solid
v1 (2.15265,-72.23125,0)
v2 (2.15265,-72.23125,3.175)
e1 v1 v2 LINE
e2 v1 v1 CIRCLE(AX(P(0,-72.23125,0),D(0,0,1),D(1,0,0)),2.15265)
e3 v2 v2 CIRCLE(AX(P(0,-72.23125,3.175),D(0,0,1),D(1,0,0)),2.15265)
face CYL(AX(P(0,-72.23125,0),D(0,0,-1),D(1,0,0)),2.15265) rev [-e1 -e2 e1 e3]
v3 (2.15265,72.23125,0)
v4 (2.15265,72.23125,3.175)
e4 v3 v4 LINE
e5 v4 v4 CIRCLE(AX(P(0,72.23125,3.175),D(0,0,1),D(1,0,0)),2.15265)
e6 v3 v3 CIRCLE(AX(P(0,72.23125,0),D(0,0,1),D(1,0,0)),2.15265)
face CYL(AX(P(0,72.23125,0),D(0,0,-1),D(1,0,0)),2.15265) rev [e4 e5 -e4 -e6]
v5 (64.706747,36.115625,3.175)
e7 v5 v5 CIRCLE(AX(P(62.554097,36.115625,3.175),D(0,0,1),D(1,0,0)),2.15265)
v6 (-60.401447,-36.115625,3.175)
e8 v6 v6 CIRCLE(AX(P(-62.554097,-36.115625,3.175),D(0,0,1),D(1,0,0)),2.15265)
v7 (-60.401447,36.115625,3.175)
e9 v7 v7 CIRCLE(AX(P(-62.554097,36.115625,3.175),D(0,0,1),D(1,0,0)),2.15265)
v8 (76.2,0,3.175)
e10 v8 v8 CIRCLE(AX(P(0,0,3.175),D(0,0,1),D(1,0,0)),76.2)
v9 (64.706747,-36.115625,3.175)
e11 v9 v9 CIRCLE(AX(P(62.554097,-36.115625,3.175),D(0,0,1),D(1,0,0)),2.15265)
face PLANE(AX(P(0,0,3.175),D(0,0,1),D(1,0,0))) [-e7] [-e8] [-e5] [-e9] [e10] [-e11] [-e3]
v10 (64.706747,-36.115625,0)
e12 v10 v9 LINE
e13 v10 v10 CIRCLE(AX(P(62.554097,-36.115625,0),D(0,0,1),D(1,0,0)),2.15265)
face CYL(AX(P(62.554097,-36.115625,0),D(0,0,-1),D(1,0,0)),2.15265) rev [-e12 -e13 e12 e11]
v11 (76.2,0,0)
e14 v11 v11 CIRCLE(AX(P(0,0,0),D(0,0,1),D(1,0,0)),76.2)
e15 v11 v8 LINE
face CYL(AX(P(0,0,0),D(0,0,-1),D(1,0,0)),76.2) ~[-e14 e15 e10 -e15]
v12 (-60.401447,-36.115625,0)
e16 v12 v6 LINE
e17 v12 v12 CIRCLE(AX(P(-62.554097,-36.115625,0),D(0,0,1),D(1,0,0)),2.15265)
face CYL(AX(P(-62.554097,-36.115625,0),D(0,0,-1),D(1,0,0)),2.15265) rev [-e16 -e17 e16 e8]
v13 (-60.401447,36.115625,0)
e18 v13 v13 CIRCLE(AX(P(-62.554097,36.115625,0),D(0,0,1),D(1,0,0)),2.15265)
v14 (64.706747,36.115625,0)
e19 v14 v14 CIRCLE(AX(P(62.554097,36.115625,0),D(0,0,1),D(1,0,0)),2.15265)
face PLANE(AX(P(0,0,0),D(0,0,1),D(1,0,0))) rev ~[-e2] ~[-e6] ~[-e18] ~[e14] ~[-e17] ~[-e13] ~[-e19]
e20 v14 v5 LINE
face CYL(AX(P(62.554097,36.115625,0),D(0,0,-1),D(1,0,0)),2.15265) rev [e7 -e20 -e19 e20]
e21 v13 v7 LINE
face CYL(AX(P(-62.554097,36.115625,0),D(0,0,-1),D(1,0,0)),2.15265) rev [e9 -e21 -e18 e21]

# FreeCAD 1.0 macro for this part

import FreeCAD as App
import Part
import Sketcher
Q = App.Units.Quantity

doc = App.newDocument("Part")
body = doc.addObject("PartDesign::Body", "Body")

# Sketch on XY plane
sketch1 = body.newObject("Sketcher::SketchObject", "Sketch")
sketch1.AttachmentSupport = (doc.getObject("XY_Plane"), [""])
sketch1.MapMode = "FlatFace"
sketch1.addGeometry(Part.Circle(App.Vector(0, 0, 0), App.Vector(0, 0, 1), 76.2), False)
sketch1.addGeometry(Part.Circle(App.Vector(-62.6, -36.1, 0), App.Vector(0, 0, 1), 2.2), False)
sketch1.addGeometry(Part.Circle(App.Vector(0, -72.2, 0), App.Vector(0, 0, 1), 2.2), False)
sketch1.addGeometry(Part.Circle(App.Vector(62.6, -36.1, 0), App.Vector(0, 0, 1), 2.2), False)
sketch1.addGeometry(Part.Circle(App.Vector(-62.6, 36.1, 0), App.Vector(0, 0, 1), 2.2), False)
sketch1.addGeometry(Part.Circle(App.Vector(62.6, 36.1, 0), App.Vector(0, 0, 1), 2.2), False)
sketch1.addGeometry(Part.Circle(App.Vector(0, 72.2, 0), App.Vector(0, 0, 1), 2.2), False)
sketch1.addConstraint(Sketcher.Constraint("Coincident", 0, 3, -1, 1))
sketch1.addConstraint(Sketcher.Constraint("Equal", 1, 2))
sketch1.addConstraint(Sketcher.Constraint("Equal", 2, 3))
sketch1.addConstraint(Sketcher.Constraint("Equal", 3, 4))
sketch1.addConstraint(Sketcher.Constraint("Equal", 4, 5))
sketch1.addConstraint(Sketcher.Constraint("Equal", 5, 6))
sketch1.addConstraint(Sketcher.Constraint("Symmetric", 3, 3, 4, 3, -1, 1))
sketch1.addConstraint(Sketcher.Constraint("Symmetric", 1, 3, 5, 3, -1, 1))
sketch1.addConstraint(Sketcher.Constraint("Symmetric", 2, 3, 6, 3, -1, 1))
sketch1.addConstraint(Sketcher.Constraint("Symmetric", 1, 3, 3, 3, -2))
sketch1.addConstraint(Sketcher.Constraint("PointOnObject", 2, 3, -2))
sketch1.addConstraint(Sketcher.Constraint("Diameter", 0, Q("6 in")))
sketch1.addConstraint(Sketcher.Constraint("Diameter", 1, Q("0.1695 in")))
sketch1.addConstraint(Sketcher.Constraint("DistanceY", 1, 3, -1, 1, Q("1.421875 in")))
sketch1.addConstraint(Sketcher.Constraint("DistanceY", 2, 3, -1, 1, Q("2.84375 in")))
sketch1.addConstraint(Sketcher.Constraint("DistanceX", 1, 3, -1, 1, Q("62.554097 mm")))
pad1 = body.newObject("PartDesign::Pad", "Pad")
pad1.Profile = sketch1
pad1.Length = Q("0.125 in")

doc.recompute()
